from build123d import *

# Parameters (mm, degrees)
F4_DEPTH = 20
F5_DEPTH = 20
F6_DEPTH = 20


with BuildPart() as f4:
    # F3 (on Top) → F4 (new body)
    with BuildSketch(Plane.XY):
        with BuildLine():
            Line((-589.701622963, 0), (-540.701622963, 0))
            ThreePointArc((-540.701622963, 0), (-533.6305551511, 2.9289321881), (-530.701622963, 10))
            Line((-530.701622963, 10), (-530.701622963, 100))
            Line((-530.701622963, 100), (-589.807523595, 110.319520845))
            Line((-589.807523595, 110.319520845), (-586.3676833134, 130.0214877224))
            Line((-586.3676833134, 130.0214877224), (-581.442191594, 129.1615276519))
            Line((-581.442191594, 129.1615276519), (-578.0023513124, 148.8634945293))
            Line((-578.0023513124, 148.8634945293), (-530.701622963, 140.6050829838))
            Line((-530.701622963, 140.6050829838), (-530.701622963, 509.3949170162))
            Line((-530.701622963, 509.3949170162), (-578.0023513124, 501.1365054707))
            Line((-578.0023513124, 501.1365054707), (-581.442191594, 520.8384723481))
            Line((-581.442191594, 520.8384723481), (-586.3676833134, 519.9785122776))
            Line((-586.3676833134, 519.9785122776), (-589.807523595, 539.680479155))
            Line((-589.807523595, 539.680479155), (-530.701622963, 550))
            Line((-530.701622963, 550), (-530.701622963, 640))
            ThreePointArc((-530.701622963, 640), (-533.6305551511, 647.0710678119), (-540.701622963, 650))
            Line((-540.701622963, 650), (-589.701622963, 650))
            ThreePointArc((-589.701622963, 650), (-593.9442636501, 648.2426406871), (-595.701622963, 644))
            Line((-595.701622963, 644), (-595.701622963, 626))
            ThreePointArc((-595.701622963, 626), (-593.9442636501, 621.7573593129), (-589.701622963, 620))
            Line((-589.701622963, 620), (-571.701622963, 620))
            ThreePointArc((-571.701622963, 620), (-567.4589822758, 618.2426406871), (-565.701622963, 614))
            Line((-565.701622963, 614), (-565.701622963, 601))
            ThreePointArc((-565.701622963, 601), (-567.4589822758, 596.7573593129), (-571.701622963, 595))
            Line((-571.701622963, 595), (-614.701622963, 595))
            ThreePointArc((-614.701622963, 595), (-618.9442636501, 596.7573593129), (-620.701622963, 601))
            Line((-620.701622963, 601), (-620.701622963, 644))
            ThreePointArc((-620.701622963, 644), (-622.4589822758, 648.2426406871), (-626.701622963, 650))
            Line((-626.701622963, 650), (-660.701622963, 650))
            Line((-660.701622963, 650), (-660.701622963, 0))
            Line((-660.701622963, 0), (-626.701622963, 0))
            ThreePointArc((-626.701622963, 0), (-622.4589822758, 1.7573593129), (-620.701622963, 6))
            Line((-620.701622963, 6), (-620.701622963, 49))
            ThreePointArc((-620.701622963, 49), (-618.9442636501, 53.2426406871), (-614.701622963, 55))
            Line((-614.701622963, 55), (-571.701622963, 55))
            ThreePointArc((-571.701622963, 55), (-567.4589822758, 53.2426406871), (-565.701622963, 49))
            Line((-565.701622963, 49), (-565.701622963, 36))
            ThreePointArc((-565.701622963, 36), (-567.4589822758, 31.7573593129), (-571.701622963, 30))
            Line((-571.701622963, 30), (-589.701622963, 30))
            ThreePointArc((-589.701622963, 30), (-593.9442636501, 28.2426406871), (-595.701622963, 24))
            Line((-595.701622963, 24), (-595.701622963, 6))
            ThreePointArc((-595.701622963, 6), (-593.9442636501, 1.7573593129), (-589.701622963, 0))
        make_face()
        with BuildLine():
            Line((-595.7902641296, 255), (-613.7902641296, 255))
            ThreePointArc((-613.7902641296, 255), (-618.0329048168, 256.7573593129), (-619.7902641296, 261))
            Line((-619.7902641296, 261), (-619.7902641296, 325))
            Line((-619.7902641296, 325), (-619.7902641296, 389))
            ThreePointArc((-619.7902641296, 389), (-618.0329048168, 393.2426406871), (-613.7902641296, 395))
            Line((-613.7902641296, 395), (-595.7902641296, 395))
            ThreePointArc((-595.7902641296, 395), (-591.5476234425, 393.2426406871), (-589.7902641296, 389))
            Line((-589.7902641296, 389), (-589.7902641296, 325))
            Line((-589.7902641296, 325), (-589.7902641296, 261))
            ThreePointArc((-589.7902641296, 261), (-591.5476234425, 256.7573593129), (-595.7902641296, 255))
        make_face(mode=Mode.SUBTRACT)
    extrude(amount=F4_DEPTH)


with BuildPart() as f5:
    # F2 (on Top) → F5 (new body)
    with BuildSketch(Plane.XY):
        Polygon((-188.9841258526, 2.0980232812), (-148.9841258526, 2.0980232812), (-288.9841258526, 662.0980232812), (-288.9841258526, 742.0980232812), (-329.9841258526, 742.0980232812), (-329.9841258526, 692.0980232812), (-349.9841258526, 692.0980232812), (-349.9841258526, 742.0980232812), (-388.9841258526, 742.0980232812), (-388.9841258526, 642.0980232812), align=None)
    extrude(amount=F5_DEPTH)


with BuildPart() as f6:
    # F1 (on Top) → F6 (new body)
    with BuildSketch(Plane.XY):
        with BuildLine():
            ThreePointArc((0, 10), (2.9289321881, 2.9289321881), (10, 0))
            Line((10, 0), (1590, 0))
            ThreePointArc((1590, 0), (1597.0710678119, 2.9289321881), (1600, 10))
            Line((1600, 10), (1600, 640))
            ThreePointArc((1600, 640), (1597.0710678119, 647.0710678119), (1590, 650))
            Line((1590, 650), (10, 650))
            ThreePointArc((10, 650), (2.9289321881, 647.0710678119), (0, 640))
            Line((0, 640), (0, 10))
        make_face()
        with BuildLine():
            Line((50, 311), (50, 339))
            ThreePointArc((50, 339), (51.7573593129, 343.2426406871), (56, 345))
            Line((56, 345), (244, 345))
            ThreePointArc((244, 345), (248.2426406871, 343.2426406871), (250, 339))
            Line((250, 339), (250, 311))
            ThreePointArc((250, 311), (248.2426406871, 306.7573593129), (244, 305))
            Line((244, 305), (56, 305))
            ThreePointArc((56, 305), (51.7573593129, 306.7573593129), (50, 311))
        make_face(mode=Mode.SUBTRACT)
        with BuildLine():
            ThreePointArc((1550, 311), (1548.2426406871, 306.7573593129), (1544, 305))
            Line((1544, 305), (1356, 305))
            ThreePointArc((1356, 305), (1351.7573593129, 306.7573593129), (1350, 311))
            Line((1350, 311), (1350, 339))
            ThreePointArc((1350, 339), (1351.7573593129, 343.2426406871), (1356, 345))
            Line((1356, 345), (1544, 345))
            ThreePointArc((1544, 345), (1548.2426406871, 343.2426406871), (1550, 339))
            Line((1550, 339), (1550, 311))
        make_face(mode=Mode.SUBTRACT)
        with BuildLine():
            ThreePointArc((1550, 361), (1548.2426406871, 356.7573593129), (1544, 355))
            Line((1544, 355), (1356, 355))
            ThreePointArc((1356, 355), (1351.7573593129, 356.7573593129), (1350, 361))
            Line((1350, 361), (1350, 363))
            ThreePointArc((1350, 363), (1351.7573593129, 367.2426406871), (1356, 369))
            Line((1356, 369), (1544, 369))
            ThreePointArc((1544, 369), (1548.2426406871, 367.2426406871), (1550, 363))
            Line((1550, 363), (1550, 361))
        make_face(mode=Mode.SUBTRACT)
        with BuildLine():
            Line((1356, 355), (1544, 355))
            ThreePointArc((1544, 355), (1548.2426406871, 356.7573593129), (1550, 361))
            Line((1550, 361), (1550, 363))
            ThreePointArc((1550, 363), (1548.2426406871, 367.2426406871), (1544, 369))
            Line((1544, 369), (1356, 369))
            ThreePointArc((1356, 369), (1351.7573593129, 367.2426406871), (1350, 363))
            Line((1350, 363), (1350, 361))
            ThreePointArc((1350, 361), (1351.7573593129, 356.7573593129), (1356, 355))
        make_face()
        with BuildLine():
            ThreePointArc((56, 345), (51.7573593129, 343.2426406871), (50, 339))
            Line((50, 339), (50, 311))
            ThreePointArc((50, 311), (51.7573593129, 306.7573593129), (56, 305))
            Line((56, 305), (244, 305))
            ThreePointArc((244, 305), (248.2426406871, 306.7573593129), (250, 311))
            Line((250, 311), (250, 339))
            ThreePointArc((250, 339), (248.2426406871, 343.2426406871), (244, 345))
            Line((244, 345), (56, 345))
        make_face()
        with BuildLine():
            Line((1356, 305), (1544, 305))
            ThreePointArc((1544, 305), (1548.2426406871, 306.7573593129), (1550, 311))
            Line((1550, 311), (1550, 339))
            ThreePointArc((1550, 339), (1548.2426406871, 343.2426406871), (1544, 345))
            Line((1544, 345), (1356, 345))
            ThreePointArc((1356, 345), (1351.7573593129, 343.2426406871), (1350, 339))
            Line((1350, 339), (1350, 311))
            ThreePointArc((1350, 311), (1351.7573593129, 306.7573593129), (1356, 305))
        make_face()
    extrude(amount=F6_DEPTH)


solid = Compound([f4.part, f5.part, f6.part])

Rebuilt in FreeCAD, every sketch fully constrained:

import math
import FreeCAD as App
import Part
import Sketcher

V = App.Vector

doc = App.newDocument("Part")
body = doc.addObject("PartDesign::Body", "Body")

# Sketch on XY plane
sketch1 = doc.addObject("Sketcher::SketchObject", "Sketch")
body.addObject(sketch1)
sketch1.AttachmentSupport = (doc.XY_Plane, [""])
sketch1.MapMode = "FlatFace"
sketch1.addGeometry([
    Part.LineSegment(V(-589.7, 0, 0), V(-540.7, 0, 0)),  # 0
    Part.ArcOfCircle(Part.Circle(V(-540.7, 10, 0), V(0, 0, 1), 10), math.radians(-90), math.radians(0)),  # 1
    Part.LineSegment(V(-530.7, 10, 0), V(-530.7, 100, 0)),  # 2
    Part.LineSegment(V(-530.7, 100, 0), V(-589.8, 110.3, 0)),  # 3
    Part.LineSegment(V(-589.8, 110.3, 0), V(-586.4, 130, 0)),  # 4
    Part.LineSegment(V(-586.4, 130, 0), V(-581.4, 129.2, 0)),  # 5
    Part.LineSegment(V(-581.4, 129.2, 0), V(-578, 148.9, 0)),  # 6
    Part.LineSegment(V(-578, 148.9, 0), V(-530.7, 140.6, 0)),  # 7
    Part.LineSegment(V(-530.7, 140.6, 0), V(-530.7, 509.4, 0)),  # 8
    Part.LineSegment(V(-530.7, 509.4, 0), V(-578, 501.1, 0)),  # 9
    Part.LineSegment(V(-578, 501.1, 0), V(-581.4, 520.8, 0)),  # 10
    Part.LineSegment(V(-581.4, 520.8, 0), V(-586.4, 520, 0)),  # 11
    Part.LineSegment(V(-586.4, 520, 0), V(-589.8, 539.7, 0)),  # 12
    Part.LineSegment(V(-589.8, 539.7, 0), V(-530.7, 550, 0)),  # 13
    Part.LineSegment(V(-530.7, 550, 0), V(-530.7, 640, 0)),  # 14
    Part.ArcOfCircle(Part.Circle(V(-540.7, 640, 0), V(0, 0, 1), 10), math.radians(0), math.radians(90)),  # 15
    Part.LineSegment(V(-540.7, 650, 0), V(-589.7, 650, 0)),  # 16
    Part.ArcOfCircle(Part.Circle(V(-589.7, 644, 0), V(0, 0, 1), 6), math.radians(90), math.radians(180)),  # 17
    Part.LineSegment(V(-595.7, 644, 0), V(-595.7, 626, 0)),  # 18
    Part.ArcOfCircle(Part.Circle(V(-589.7, 626, 0), V(0, 0, 1), 6), math.radians(180), math.radians(270)),  # 19
    Part.LineSegment(V(-589.7, 620, 0), V(-571.7, 620, 0)),  # 20
    Part.ArcOfCircle(Part.Circle(V(-571.7, 614, 0), V(0, 0, 1), 6), math.radians(0), math.radians(90)),  # 21
    Part.LineSegment(V(-565.7, 614, 0), V(-565.7, 601, 0)),  # 22
    Part.ArcOfCircle(Part.Circle(V(-571.7, 601, 0), V(0, 0, 1), 6), math.radians(-90), math.radians(0)),  # 23
    Part.LineSegment(V(-571.7, 595, 0), V(-614.7, 595, 0)),  # 24
    Part.ArcOfCircle(Part.Circle(V(-614.7, 601, 0), V(0, 0, 1), 6), math.radians(180), math.radians(270)),  # 25
    Part.LineSegment(V(-620.7, 601, 0), V(-620.7, 644, 0)),  # 26
    Part.ArcOfCircle(Part.Circle(V(-626.7, 644, 0), V(0, 0, 1), 6), math.radians(0), math.radians(90)),  # 27
    Part.LineSegment(V(-626.7, 650, 0), V(-660.7, 650, 0)),  # 28
    Part.LineSegment(V(-660.7, 650, 0), V(-660.7, 0, 0)),  # 29
    Part.LineSegment(V(-660.7, 0, 0), V(-626.7, 0, 0)),  # 30
    Part.ArcOfCircle(Part.Circle(V(-626.7, 6, 0), V(0, 0, 1), 6), math.radians(-90), math.radians(0)),  # 31
    Part.LineSegment(V(-620.7, 6, 0), V(-620.7, 49, 0)),  # 32
    Part.ArcOfCircle(Part.Circle(V(-614.7, 49, 0), V(0, 0, 1), 6), math.radians(90), math.radians(180)),  # 33
    Part.LineSegment(V(-614.7, 55, 0), V(-571.7, 55, 0)),  # 34
    Part.ArcOfCircle(Part.Circle(V(-571.7, 49, 0), V(0, 0, 1), 6), math.radians(0), math.radians(90)),  # 35
    Part.LineSegment(V(-565.7, 49, 0), V(-565.7, 36, 0)),  # 36
    Part.ArcOfCircle(Part.Circle(V(-571.7, 36, 0), V(0, 0, 1), 6), math.radians(-90), math.radians(0)),  # 37
    Part.LineSegment(V(-571.7, 30, 0), V(-589.7, 30, 0)),  # 38
    Part.ArcOfCircle(Part.Circle(V(-589.7, 24, 0), V(0, 0, 1), 6), math.radians(90), math.radians(180)),  # 39
    Part.LineSegment(V(-595.7, 24, 0), V(-595.7, 6, 0)),  # 40
    Part.ArcOfCircle(Part.Circle(V(-589.7, 6, 0), V(0, 0, 1), 6), math.radians(180), math.radians(270)),  # 41
    Part.ArcOfCircle(Part.Circle(V(-595.8, 261, 0), V(0, 0, 1), 6), math.radians(-90), math.radians(0)),  # 42
    Part.LineSegment(V(-595.8, 255, 0), V(-613.8, 255, 0)),  # 43
    Part.ArcOfCircle(Part.Circle(V(-613.8, 261, 0), V(0, 0, 1), 6), math.radians(180), math.radians(270)),  # 44
    Part.LineSegment(V(-619.8, 261, 0), V(-619.8, 389, 0)),  # 45
    Part.ArcOfCircle(Part.Circle(V(-613.8, 389, 0), V(0, 0, 1), 6), math.radians(90), math.radians(180)),  # 46
    Part.LineSegment(V(-613.8, 395, 0), V(-595.8, 395, 0)),  # 47
    Part.ArcOfCircle(Part.Circle(V(-595.8, 389, 0), V(0, 0, 1), 6), math.radians(0), math.radians(90)),  # 48
    Part.LineSegment(V(-589.8, 389, 0), V(-589.8, 261, 0)),  # 49
], False)
sketch1.addConstraint([
    Sketcher.Constraint("Tangent", 0, 2, 1, 1),
    Sketcher.Constraint("Tangent", 1, 2, 2, 1),
    Sketcher.Constraint("Coincident", 2, 2, 3, 1),
    Sketcher.Constraint("Coincident", 3, 2, 4, 1),
    Sketcher.Constraint("Coincident", 4, 2, 5, 1),
    Sketcher.Constraint("Coincident", 5, 2, 6, 1),
    Sketcher.Constraint("Coincident", 6, 2, 7, 1),
    Sketcher.Constraint("Coincident", 7, 2, 8, 1),
    Sketcher.Constraint("Coincident", 8, 2, 9, 1),
    Sketcher.Constraint("Coincident", 9, 2, 10, 1),
    Sketcher.Constraint("Coincident", 10, 2, 11, 1),
    Sketcher.Constraint("Coincident", 11, 2, 12, 1),
    Sketcher.Constraint("Coincident", 12, 2, 13, 1),
    Sketcher.Constraint("Coincident", 13, 2, 14, 1),
    Sketcher.Constraint("Tangent", 14, 2, 15, 1),
    Sketcher.Constraint("Tangent", 15, 2, 16, 1),
    Sketcher.Constraint("Tangent", 16, 2, 17, 1),
    Sketcher.Constraint("Tangent", 17, 2, 18, 1),
    Sketcher.Constraint("Tangent", 18, 2, 19, 1),
    Sketcher.Constraint("Tangent", 19, 2, 20, 1),
    Sketcher.Constraint("Tangent", 20, 2, 21, 2),
    Sketcher.Constraint("Tangent", 21, 1, 22, 1),
    Sketcher.Constraint("Tangent", 22, 2, 23, 2),
    Sketcher.Constraint("Tangent", 23, 1, 24, 1),
    Sketcher.Constraint("Tangent", 24, 2, 25, 2),
    Sketcher.Constraint("Tangent", 25, 1, 26, 1),
    Sketcher.Constraint("Tangent", 26, 2, 27, 1),
    Sketcher.Constraint("Tangent", 27, 2, 28, 1),
    Sketcher.Constraint("Coincident", 28, 2, 29, 1),
    Sketcher.Constraint("Coincident", 29, 2, 30, 1),
    Sketcher.Constraint("Tangent", 30, 2, 31, 1),
    Sketcher.Constraint("Tangent", 31, 2, 32, 1),
    Sketcher.Constraint("Tangent", 32, 2, 33, 2),
    Sketcher.Constraint("Tangent", 33, 1, 34, 1),
    Sketcher.Constraint("Tangent", 34, 2, 35, 2),
    Sketcher.Constraint("Tangent", 35, 1, 36, 1),
    Sketcher.Constraint("Tangent", 36, 2, 37, 2),
    Sketcher.Constraint("Tangent", 37, 1, 38, 1),
    Sketcher.Constraint("Tangent", 38, 2, 39, 1),
    Sketcher.Constraint("Tangent", 39, 2, 40, 1),
    Sketcher.Constraint("Tangent", 40, 2, 41, 1),
    Sketcher.Constraint("Tangent", 41, 2, 0, 1),
    Sketcher.Constraint("Tangent", 42, 1, 43, 1),
    Sketcher.Constraint("Tangent", 43, 2, 44, 2),
    Sketcher.Constraint("Tangent", 44, 1, 45, 1),
    Sketcher.Constraint("Tangent", 45, 2, 46, 2),
    Sketcher.Constraint("Tangent", 46, 1, 47, 1),
    Sketcher.Constraint("Tangent", 47, 2, 48, 2),
    Sketcher.Constraint("Tangent", 48, 1, 49, 1),
    Sketcher.Constraint("Tangent", 49, 2, 42, 2),
    Sketcher.Constraint("Horizontal", 0),
    Sketcher.Constraint("Vertical", 2),
    Sketcher.Constraint("Vertical", 8),
    Sketcher.Constraint("Vertical", 14),
    Sketcher.Constraint("Horizontal", 16),
    Sketcher.Constraint("Vertical", 18),
    Sketcher.Constraint("Horizontal", 20),
    Sketcher.Constraint("Vertical", 22),
    Sketcher.Constraint("Horizontal", 24),
    Sketcher.Constraint("Vertical", 26),
    Sketcher.Constraint("Horizontal", 28),
    Sketcher.Constraint("Vertical", 29),
    Sketcher.Constraint("Horizontal", 30),
    Sketcher.Constraint("Vertical", 32),
    Sketcher.Constraint("Horizontal", 34),
    Sketcher.Constraint("Vertical", 36),
    Sketcher.Constraint("Horizontal", 38),
    Sketcher.Constraint("Vertical", 40),
    Sketcher.Constraint("Horizontal", 43),
    Sketcher.Constraint("Vertical", 45),
    Sketcher.Constraint("Horizontal", 47),
    Sketcher.Constraint("Vertical", 49),
    Sketcher.Constraint("Equal", 1, 15),
    Sketcher.Constraint("Equal", 17, 19),
    Sketcher.Constraint("Equal", 19, 21),
    Sketcher.Constraint("Equal", 21, 23),
    Sketcher.Constraint("Equal", 23, 25),
    Sketcher.Constraint("Equal", 25, 27),
    Sketcher.Constraint("Equal", 27, 31),
    Sketcher.Constraint("Equal", 31, 33),
    Sketcher.Constraint("Equal", 33, 35),
    Sketcher.Constraint("Equal", 35, 37),
    Sketcher.Constraint("Equal", 37, 39),
    Sketcher.Constraint("Equal", 39, 41),
    Sketcher.Constraint("Equal", 41, 42),
    Sketcher.Constraint("Equal", 42, 44),
    Sketcher.Constraint("Equal", 44, 46),
    Sketcher.Constraint("Equal", 46, 48),
    Sketcher.Constraint("PointOnObject", 0, 2, -1),
    Sketcher.Constraint("PointOnObject", 29, 2, -1),
    Sketcher.Constraint("Perpendicular", 3, 4),
    Sketcher.Constraint("Perpendicular", 4, 5),
    Sketcher.Constraint("Perpendicular", 5, 6),
    Sketcher.Constraint("Perpendicular", 6, 7),
    Sketcher.Constraint("Perpendicular", 9, 10),
    Sketcher.Constraint("Perpendicular", 10, 11),
    Sketcher.Constraint("Perpendicular", 11, 12),
    Sketcher.Constraint("Perpendicular", 12, 13),
    Sketcher.Constraint("Horizontal", 17, 3, 27, 3),
    Sketcher.Constraint("Vertical", 1, 3, 15, 3),
    Sketcher.Constraint("Vertical", 27, 3, 31, 3),
    Sketcher.Constraint("Vertical", 23, 3, 35, 3),
    Sketcher.Constraint("Vertical", 19, 3, 39, 3),
    Sketcher.Constraint("Vertical", 2, 2, 7, 2),
    Sketcher.Constraint("Vertical", 6, 2, 9, 2),
    Sketcher.Constraint("Vertical", 5, 2, 10, 2),
    Sketcher.Constraint("Vertical", 4, 2, 11, 2),
    Sketcher.Constraint("Vertical", 3, 2, 12, 2),
    Sketcher.Constraint("Equal", 38, 43),
    Sketcher.Constraint("Equal", 2, 14),
    Sketcher.Constraint("Equal", 47, 18),
    Sketcher.Constraint("Equal", 34, 26),
    Sketcher.Constraint("Equal", 26, 32),
    Sketcher.Constraint("Equal", 22, 36),
    Sketcher.Constraint("Equal", 4, 6),
    Sketcher.Constraint("Equal", 7, 9),
    Sketcher.Constraint("Radius", 1, 10.0),
    Sketcher.Constraint("Radius", 17, 6.0),
    Sketcher.Constraint("DistanceX", 0, 1, 0, 2, 49.0),
    Sketcher.Constraint("DistanceX", 20, 1, 20, 2, 18.0),
    Sketcher.Constraint("DistanceX", 24, 2, 24, 1, 43.0),
    Sketcher.Constraint("DistanceX", 28, 2, 28, 1, 34.0),
    Sketcher.Constraint("DistanceY", 2, 1, 2, 2, 90.0),
    Sketcher.Constraint("DistanceY", 29, 2, 29, 1, 650.0),
    Sketcher.Constraint("DistanceY", 45, 1, 45, 2, 128.0),
    Sketcher.Constraint("Distance", 3, 60.0),
    Sketcher.Constraint("Distance", 4, 20.0),
    Sketcher.Constraint("Distance", 5, 5.0),
    Sketcher.Constraint("DistanceY", -1, 1, 42, 3, 261.0),
    Sketcher.Constraint("Distance", 7, 48.01625),
    Sketcher.Constraint("DistanceX", 5, 2, -1, 1, 581.442192),
    Sketcher.Constraint("DistanceX", 42, 3, -1, 1, 595.790264),
])
pad1 = doc.addObject("PartDesign::Pad", "Pad")
body.addObject(pad1)
pad1.Profile = sketch1
pad1.Length = 20
body2 = doc.addObject("PartDesign::Body", "Body001")

# Sketch on XY plane
sketch2 = doc.addObject("Sketcher::SketchObject", "Sketch001")
body2.addObject(sketch2)
sketch2.AttachmentSupport = (doc.getObject("XY_Plane001"), [""])
sketch2.MapMode = "FlatFace"
sketch2.addGeometry([
    Part.LineSegment(V(-189, 2, 0), V(-149, 2, 0)),  # 0
    Part.LineSegment(V(-149, 2, 0), V(-289, 662, 0)),  # 1
    Part.LineSegment(V(-289, 662, 0), V(-289, 742, 0)),  # 2
    Part.LineSegment(V(-289, 742, 0), V(-330, 742, 0)),  # 3
    Part.LineSegment(V(-330, 742, 0), V(-330, 692, 0)),  # 4
    Part.LineSegment(V(-330, 692, 0), V(-350, 692, 0)),  # 5
    Part.LineSegment(V(-350, 692, 0), V(-350, 742, 0)),  # 6
    Part.LineSegment(V(-350, 742, 0), V(-389, 742, 0)),  # 7
    Part.LineSegment(V(-389, 742, 0), V(-389, 642, 0)),  # 8
    Part.LineSegment(V(-389, 642, 0), V(-189, 2, 0)),  # 9
], False)
sketch2.addConstraint([
    Sketcher.Constraint("Coincident", 0, 2, 1, 1),
    Sketcher.Constraint("Coincident", 1, 2, 2, 1),
    Sketcher.Constraint("Coincident", 2, 2, 3, 1),
    Sketcher.Constraint("Coincident", 3, 2, 4, 1),
    Sketcher.Constraint("Coincident", 4, 2, 5, 1),
    Sketcher.Constraint("Coincident", 5, 2, 6, 1),
    Sketcher.Constraint("Coincident", 6, 2, 7, 1),
    Sketcher.Constraint("Coincident", 7, 2, 8, 1),
    Sketcher.Constraint("Coincident", 8, 2, 9, 1),
    Sketcher.Constraint("Coincident", 9, 2, 0, 1),
    Sketcher.Constraint("Horizontal", 0),
    Sketcher.Constraint("Vertical", 2),
    Sketcher.Constraint("Horizontal", 3),
    Sketcher.Constraint("Vertical", 4),
    Sketcher.Constraint("Horizontal", 5),
    Sketcher.Constraint("Vertical", 6),
    Sketcher.Constraint("Horizontal", 7),
    Sketcher.Constraint("Vertical", 8),
    Sketcher.Constraint("Horizontal", 3, 2, 6, 2),
    Sketcher.Constraint("DistanceX", 0, 1, 0, 2, 40.0),
    Sketcher.Constraint("DistanceX", 3, 2, 3, 1, 41.0),
    Sketcher.Constraint("DistanceX", 5, 2, 5, 1, 20.0),
    Sketcher.Constraint("DistanceX", 7, 2, 7, 1, 39.0),
    Sketcher.Constraint("DistanceY", 2, 1, 2, 2, 80.0),
    Sketcher.Constraint("DistanceY", 4, 2, 4, 1, 50.0),
    Sketcher.Constraint("DistanceY", 8, 2, 8, 1, 100.0),
    Sketcher.Constraint("DistanceX", 1, 2, 0, 2, 140.0),
    Sketcher.Constraint("DistanceY", 0, 2, 1, 2, 660.0),
    Sketcher.Constraint("DistanceX", 0, 2, -1, 1, 148.984126),
    Sketcher.Constraint("DistanceY", -1, 1, 0, 2, 2.098023),
])
pad2 = doc.addObject("PartDesign::Pad", "Pad001")
body2.addObject(pad2)
pad2.Profile = sketch2
pad2.Length = 20
body3 = doc.addObject("PartDesign::Body", "Body002")

# Sketch on XY plane
sketch3 = doc.addObject("Sketcher::SketchObject", "Sketch002")
body3.addObject(sketch3)
sketch3.AttachmentSupport = (doc.getObject("XY_Plane002"), [""])
sketch3.MapMode = "FlatFace"
sketch3.addGeometry([
    Part.ArcOfCircle(Part.Circle(V(10, 10, 0), V(0, 0, 1), 10), math.radians(180), math.radians(270)),  # 0
    Part.LineSegment(V(10, 0, 0), V(1590, 0, 0)),  # 1
    Part.ArcOfCircle(Part.Circle(V(1590, 10, 0), V(0, 0, 1), 10), math.radians(-90), math.radians(0)),  # 2
    Part.LineSegment(V(1600, 10, 0), V(1600, 640, 0)),  # 3
    Part.ArcOfCircle(Part.Circle(V(1590, 640, 0), V(0, 0, 1), 10), math.radians(0), math.radians(90)),  # 4
    Part.LineSegment(V(1590, 650, 0), V(10, 650, 0)),  # 5
    Part.ArcOfCircle(Part.Circle(V(10, 640, 0), V(0, 0, 1), 10), math.radians(90), math.radians(180)),  # 6
    Part.LineSegment(V(0, 640, 0), V(0, 10, 0)),  # 7
], False)
sketch3.addConstraint([
    Sketcher.Constraint("Tangent", 0, 2, 1, 1),
    Sketcher.Constraint("Tangent", 1, 2, 2, 1),
    Sketcher.Constraint("Tangent", 2, 2, 3, 1),
    Sketcher.Constraint("Tangent", 3, 2, 4, 1),
    Sketcher.Constraint("Tangent", 4, 2, 5, 1),
    Sketcher.Constraint("Tangent", 5, 2, 6, 1),
    Sketcher.Constraint("Tangent", 6, 2, 7, 1),
    Sketcher.Constraint("Tangent", 7, 2, 0, 1),
    Sketcher.Constraint("Horizontal", 1),
    Sketcher.Constraint("Vertical", 3),
    Sketcher.Constraint("Horizontal", 5),
    Sketcher.Constraint("Vertical", 7),
    Sketcher.Constraint("Equal", 0, 2),
    Sketcher.Constraint("Equal", 2, 4),
    Sketcher.Constraint("Equal", 4, 6),
    Sketcher.Constraint("PointOnObject", 0, 2, -1),
    Sketcher.Constraint("PointOnObject", 6, 2, -2),
    Sketcher.Constraint("Radius", 0, 10.0),
    Sketcher.Constraint("DistanceX", 1, 1, 1, 2, 1580.0),
    Sketcher.Constraint("DistanceY", 3, 1, 3, 2, 630.0),
])
pad3 = doc.addObject("PartDesign::Pad", "Pad002")
body3.addObject(pad3)
pad3.Profile = sketch3
pad3.Length = 20

doc.recompute()
